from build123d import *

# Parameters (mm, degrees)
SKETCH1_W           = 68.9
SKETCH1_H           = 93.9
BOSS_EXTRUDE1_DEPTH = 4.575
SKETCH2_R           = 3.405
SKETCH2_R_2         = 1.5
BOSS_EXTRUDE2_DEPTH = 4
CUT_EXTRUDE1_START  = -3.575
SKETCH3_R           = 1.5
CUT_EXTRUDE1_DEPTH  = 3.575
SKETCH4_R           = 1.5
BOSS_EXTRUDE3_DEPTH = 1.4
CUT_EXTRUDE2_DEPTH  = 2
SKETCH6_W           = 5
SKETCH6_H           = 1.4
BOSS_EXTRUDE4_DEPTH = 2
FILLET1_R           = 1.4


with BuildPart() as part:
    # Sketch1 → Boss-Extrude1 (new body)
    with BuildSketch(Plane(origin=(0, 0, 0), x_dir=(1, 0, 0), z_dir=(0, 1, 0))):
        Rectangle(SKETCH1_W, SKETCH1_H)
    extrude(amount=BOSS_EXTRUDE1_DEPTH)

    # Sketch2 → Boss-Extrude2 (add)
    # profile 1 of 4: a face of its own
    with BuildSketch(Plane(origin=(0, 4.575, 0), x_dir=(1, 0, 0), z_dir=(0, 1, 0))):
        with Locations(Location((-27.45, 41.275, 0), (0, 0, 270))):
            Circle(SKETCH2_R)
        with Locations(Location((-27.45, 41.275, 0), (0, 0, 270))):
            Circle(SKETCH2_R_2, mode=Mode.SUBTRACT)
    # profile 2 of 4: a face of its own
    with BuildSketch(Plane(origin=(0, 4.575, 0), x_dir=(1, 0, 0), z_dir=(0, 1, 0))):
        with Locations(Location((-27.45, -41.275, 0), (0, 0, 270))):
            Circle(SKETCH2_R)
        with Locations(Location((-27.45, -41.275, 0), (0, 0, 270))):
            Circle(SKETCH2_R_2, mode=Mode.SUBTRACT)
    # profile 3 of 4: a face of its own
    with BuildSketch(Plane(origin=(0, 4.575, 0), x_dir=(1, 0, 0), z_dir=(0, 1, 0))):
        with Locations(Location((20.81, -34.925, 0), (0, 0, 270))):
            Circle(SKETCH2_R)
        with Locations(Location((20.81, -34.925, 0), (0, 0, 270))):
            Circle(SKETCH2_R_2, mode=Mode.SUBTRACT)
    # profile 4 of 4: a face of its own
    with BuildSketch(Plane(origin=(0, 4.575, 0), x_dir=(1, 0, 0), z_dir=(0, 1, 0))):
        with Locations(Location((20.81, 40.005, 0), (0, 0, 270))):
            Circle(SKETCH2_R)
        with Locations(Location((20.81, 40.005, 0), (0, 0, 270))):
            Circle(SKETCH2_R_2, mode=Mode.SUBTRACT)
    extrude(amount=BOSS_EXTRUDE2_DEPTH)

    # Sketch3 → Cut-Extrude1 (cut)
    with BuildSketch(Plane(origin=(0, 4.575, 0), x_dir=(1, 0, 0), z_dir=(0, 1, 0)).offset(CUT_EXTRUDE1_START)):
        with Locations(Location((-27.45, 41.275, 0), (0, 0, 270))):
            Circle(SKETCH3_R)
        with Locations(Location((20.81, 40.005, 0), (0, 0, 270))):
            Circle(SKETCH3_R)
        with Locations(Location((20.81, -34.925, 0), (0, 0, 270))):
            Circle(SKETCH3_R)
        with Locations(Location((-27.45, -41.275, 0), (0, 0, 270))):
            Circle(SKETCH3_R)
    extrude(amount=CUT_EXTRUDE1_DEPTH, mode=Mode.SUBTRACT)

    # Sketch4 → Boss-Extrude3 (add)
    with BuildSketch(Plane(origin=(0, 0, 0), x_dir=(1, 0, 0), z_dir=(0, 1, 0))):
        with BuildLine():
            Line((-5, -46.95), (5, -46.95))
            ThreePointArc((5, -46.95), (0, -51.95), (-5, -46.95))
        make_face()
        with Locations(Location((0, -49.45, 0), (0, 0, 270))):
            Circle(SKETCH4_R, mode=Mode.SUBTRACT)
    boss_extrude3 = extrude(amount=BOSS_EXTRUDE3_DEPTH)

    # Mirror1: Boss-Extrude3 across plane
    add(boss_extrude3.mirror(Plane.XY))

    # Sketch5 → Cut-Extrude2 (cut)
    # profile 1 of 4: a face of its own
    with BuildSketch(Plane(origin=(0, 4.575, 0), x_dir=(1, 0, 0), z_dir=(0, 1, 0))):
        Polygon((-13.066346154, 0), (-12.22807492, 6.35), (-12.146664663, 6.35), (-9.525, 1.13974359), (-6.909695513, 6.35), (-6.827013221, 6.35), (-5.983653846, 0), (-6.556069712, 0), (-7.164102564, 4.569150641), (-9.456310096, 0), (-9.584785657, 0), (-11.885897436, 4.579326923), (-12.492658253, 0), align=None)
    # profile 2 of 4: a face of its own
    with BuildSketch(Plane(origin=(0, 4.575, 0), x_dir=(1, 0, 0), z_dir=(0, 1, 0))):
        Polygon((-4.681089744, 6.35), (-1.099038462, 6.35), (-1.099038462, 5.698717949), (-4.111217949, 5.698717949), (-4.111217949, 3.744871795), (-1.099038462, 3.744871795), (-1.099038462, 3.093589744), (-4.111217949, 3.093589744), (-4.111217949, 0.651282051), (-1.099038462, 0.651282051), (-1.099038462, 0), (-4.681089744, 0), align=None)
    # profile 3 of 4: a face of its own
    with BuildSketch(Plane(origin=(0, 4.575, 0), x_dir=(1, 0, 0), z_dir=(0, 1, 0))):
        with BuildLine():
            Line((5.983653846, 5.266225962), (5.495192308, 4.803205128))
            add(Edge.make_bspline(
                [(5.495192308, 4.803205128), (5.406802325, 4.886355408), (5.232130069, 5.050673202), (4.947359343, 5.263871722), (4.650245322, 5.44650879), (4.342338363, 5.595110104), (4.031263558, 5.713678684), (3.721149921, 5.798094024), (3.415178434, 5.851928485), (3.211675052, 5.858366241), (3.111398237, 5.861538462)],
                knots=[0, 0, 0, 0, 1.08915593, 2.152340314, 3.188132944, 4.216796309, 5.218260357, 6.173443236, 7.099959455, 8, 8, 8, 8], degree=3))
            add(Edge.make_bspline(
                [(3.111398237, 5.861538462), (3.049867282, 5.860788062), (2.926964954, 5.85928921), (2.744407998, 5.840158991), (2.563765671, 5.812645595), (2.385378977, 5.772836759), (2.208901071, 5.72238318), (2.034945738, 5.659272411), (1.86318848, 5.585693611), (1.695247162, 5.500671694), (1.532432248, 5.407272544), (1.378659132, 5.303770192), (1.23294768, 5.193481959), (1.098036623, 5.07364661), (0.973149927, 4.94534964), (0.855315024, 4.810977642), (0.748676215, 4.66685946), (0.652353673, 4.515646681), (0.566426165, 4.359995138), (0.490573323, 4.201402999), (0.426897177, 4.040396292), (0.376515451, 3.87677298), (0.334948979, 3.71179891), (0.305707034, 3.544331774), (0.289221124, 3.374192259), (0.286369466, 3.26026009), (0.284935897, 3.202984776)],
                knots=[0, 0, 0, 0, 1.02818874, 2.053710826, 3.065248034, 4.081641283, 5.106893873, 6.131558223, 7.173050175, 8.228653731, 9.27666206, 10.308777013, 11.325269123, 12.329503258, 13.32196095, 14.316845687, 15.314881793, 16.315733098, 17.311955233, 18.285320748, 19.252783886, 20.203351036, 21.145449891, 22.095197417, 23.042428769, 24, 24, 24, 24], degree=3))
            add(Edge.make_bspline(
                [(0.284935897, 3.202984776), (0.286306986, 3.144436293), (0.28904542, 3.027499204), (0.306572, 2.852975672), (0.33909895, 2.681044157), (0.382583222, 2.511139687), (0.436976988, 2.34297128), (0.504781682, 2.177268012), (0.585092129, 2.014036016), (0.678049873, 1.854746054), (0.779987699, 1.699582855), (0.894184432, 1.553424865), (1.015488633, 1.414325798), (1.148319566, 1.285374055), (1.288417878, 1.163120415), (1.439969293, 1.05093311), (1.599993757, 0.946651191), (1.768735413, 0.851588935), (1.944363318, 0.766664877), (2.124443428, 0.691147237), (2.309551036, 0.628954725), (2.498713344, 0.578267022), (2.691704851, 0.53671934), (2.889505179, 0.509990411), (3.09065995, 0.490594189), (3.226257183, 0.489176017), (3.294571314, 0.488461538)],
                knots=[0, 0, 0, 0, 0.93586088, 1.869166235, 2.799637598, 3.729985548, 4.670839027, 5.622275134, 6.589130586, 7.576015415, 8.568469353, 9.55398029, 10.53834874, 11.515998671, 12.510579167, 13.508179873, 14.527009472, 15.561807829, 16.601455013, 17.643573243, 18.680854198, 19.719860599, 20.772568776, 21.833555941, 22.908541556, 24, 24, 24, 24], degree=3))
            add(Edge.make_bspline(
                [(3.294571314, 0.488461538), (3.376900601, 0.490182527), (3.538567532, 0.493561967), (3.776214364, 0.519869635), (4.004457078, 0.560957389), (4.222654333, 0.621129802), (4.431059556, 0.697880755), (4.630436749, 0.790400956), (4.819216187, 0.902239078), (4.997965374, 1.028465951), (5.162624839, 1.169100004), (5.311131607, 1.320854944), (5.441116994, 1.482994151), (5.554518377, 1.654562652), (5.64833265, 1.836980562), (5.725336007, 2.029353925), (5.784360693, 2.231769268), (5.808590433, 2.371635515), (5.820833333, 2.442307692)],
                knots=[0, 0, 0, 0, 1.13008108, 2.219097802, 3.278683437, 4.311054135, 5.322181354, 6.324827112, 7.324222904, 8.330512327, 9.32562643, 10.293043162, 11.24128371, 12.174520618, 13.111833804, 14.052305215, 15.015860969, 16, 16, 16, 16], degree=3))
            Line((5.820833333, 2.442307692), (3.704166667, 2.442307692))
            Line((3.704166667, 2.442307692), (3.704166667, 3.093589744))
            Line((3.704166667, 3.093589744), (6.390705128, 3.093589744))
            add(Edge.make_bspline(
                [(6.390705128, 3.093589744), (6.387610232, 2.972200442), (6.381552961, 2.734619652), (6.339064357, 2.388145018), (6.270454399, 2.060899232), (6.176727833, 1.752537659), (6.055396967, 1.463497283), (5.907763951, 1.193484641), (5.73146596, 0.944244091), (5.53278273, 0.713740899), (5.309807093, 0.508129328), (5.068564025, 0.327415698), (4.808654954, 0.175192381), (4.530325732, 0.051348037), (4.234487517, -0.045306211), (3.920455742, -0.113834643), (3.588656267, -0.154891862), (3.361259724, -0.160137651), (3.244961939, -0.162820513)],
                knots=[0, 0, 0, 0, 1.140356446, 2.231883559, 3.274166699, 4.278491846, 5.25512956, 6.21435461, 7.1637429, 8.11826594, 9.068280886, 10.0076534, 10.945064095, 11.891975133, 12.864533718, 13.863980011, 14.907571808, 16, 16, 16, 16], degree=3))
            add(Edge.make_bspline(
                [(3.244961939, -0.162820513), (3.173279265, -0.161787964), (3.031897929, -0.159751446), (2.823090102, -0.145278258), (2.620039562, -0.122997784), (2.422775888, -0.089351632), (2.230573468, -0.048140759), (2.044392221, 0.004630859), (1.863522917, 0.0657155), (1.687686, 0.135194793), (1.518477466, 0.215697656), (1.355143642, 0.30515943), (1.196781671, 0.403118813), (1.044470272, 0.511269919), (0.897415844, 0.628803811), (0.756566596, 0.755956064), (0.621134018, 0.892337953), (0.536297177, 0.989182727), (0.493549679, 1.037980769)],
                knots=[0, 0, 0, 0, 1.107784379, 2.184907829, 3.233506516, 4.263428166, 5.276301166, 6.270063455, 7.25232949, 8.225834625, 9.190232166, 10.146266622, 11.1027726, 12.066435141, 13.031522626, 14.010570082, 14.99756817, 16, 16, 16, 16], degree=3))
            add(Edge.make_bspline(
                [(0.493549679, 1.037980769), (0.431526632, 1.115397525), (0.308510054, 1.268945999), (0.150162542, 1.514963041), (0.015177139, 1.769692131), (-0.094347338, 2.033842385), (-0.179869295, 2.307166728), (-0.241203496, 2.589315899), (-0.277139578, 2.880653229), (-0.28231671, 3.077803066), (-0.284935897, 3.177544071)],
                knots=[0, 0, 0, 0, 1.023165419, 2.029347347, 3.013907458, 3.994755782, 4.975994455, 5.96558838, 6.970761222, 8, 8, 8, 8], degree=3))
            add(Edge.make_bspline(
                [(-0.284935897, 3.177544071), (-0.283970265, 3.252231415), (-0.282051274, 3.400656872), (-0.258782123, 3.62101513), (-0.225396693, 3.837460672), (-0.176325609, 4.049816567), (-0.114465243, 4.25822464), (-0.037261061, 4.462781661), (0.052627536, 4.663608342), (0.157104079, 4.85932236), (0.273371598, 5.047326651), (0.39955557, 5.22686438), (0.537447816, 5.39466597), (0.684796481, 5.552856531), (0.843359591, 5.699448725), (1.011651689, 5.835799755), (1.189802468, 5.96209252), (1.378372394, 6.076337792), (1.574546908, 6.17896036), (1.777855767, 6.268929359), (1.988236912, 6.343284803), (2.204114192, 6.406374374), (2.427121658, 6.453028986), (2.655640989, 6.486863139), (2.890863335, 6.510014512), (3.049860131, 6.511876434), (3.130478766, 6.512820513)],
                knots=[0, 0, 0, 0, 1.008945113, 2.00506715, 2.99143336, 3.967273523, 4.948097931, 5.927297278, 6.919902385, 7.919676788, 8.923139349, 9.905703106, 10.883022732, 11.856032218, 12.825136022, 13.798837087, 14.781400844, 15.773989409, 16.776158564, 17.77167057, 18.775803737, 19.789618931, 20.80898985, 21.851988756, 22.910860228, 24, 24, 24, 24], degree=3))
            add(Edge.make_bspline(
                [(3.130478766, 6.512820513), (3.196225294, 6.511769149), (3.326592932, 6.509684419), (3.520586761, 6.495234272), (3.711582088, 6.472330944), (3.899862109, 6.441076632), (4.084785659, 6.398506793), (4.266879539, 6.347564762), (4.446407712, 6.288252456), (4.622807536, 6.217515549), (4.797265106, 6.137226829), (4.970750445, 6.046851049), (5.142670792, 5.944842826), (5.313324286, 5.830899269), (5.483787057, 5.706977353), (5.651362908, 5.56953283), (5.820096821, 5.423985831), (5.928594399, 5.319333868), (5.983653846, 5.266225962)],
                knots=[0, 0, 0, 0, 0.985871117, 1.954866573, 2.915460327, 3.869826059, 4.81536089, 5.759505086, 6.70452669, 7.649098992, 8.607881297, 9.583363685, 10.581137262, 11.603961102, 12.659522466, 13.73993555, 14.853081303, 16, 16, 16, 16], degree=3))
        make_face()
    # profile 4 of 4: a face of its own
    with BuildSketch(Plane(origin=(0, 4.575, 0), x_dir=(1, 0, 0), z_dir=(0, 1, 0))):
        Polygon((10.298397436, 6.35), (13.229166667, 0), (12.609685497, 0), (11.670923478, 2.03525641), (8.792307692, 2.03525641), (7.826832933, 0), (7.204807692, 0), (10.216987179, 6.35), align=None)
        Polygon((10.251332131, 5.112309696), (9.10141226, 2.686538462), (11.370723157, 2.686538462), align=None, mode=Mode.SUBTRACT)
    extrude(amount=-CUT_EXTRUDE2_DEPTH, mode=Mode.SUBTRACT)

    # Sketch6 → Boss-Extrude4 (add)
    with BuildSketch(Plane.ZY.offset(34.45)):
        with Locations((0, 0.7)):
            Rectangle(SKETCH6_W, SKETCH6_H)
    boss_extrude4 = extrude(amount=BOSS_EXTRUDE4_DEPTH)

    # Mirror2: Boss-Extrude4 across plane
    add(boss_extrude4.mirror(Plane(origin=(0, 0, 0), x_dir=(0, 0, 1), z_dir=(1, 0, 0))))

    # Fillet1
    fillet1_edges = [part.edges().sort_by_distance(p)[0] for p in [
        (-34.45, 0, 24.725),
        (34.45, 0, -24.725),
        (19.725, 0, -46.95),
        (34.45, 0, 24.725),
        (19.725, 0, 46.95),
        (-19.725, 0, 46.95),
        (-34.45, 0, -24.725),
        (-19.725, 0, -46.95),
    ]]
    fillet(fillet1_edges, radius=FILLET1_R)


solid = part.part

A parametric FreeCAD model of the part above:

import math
import FreeCAD as App
import Part
import Sketcher
from FreeCAD import Vector
Q = App.Units.Quantity


def edges_at(feature, points):
    """Names of the edges that pass closest to the given points."""
    edges = feature.Shape.Edges
    near = lambda p: min(range(len(edges)), key=lambda i: edges[i].distToShape(Part.Vertex(*p))[0])
    return sorted({f"Edge{near(p) + 1}" for p in points})

doc = App.newDocument("Part")
body = doc.addObject("PartDesign::Body", "Body")

# Sketch on XZ plane
sketch1 = body.newObject("Sketcher::SketchObject", "Sketch")
sketch1.AttachmentSupport = (doc.getObject("XZ_Plane"), [""])
sketch1.MapMode = "FlatFace"
sketch1.addGeometry(Part.LineSegment(Vector(-34, -47, 0), Vector(-34, 47, 0)), False)
sketch1.addGeometry(Part.LineSegment(Vector(-34, 47, 0), Vector(34, 47, 0)), False)
sketch1.addGeometry(Part.LineSegment(Vector(34, 47, 0), Vector(34, -47, 0)), False)
sketch1.addGeometry(Part.LineSegment(Vector(34, -47, 0), Vector(-34, -47, 0)), False)
sketch1.addConstraint(Sketcher.Constraint("Coincident", 0, 2, 1, 1))
sketch1.addConstraint(Sketcher.Constraint("Coincident", 1, 2, 2, 1))
sketch1.addConstraint(Sketcher.Constraint("Coincident", 2, 2, 3, 1))
sketch1.addConstraint(Sketcher.Constraint("Coincident", 3, 2, 0, 1))
sketch1.addConstraint(Sketcher.Constraint("Vertical", 0))
sketch1.addConstraint(Sketcher.Constraint("Horizontal", 1))
sketch1.addConstraint(Sketcher.Constraint("Vertical", 2))
sketch1.addConstraint(Sketcher.Constraint("Horizontal", 3))
sketch1.addConstraint(Sketcher.Constraint("Symmetric", 0, 2, 2, 2, -1, 1))
sketch1.addConstraint(Sketcher.Constraint("DistanceX", 1, 1, 1, 2, Q("68.9 mm")))
sketch1.addConstraint(Sketcher.Constraint("DistanceY", 0, 1, 0, 2, Q("93.9 mm")))
pad1 = body.newObject("PartDesign::Pad", "Pad")
pad1.Profile = sketch1
pad1.Length = 4.575
pad1.Reversed = True

# Sketch on XZ plane
sketch2 = body.newObject("Sketcher::SketchObject", "Sketch001")
sketch2.AttachmentSupport = (doc.getObject("XZ_Plane"), [""])
sketch2.MapMode = "FlatFace"
sketch2.AttachmentOffset = App.Placement(Vector(0, 0, -4.575), App.Rotation())
sketch2.addGeometry(Part.Circle(Vector(-27.4, -41.3, 0), Vector(0, 0, 1), 3.4), False)
sketch2.addGeometry(Part.Circle(Vector(-27.4, -41.3, 0), Vector(0, 0, 1), 1.5), False)
sketch2.addGeometry(Part.Circle(Vector(-27.4, 41.3, 0), Vector(0, 0, 1), 3.4), False)
sketch2.addGeometry(Part.Circle(Vector(-27.4, 41.3, 0), Vector(0, 0, 1), 1.5), False)
sketch2.addGeometry(Part.Circle(Vector(20.8, 34.9, 0), Vector(0, 0, 1), 3.4), False)
sketch2.addGeometry(Part.Circle(Vector(20.8, 34.9, 0), Vector(0, 0, 1), 1.5), False)
sketch2.addGeometry(Part.Circle(Vector(20.8, -40, 0), Vector(0, 0, 1), 3.4), False)
sketch2.addGeometry(Part.Circle(Vector(20.8, -40, 0), Vector(0, 0, 1), 1.5), False)
sketch2.addConstraint(Sketcher.Constraint("Coincident", 1, 3, 0, 3))
sketch2.addConstraint(Sketcher.Constraint("Coincident", 3, 3, 2, 3))
sketch2.addConstraint(Sketcher.Constraint("Coincident", 5, 3, 4, 3))
sketch2.addConstraint(Sketcher.Constraint("Coincident", 7, 3, 6, 3))
sketch2.addConstraint(Sketcher.Constraint("Equal", 0, 2))
sketch2.addConstraint(Sketcher.Constraint("Equal", 1, 3))
sketch2.addConstraint(Sketcher.Constraint("Equal", 2, 4))
sketch2.addConstraint(Sketcher.Constraint("Equal", 3, 5))
sketch2.addConstraint(Sketcher.Constraint("Equal", 4, 6))
sketch2.addConstraint(Sketcher.Constraint("Equal", 5, 7))
sketch2.addConstraint(Sketcher.Constraint("Symmetric", 0, 3, 2, 3, -1))
sketch2.addConstraint(Sketcher.Constraint("Vertical", 5, 3, 6, 3))
sketch2.addConstraint(Sketcher.Constraint("Diameter", 1, Q("3 mm")))
sketch2.addConstraint(Sketcher.Constraint("Diameter", 0, Q("6.81 mm")))
sketch2.addConstraint(Sketcher.Constraint("DistanceY", 0, 3, 4, 3, Q("76.2 mm")))
sketch2.addConstraint(Sketcher.Constraint("DistanceX", 0, 3, -1, 1, Q("27.45 mm")))
sketch2.addConstraint(Sketcher.Constraint("DistanceX", -1, 1, 4, 3, Q("20.81 mm")))
sketch2.addConstraint(Sketcher.Constraint("DistanceY", 0, 3, 2, 3, Q("82.55 mm")))
sketch2.addConstraint(Sketcher.Constraint("DistanceY", 0, 3, 6, 3, Q("1.27 mm")))
pad2 = body.newObject("PartDesign::Pad", "Pad001")
pad2.Profile = sketch2
pad2.Length = 4
pad2.Reversed = True

# Sketch on XZ plane
sketch3 = body.newObject("Sketcher::SketchObject", "Sketch002")
sketch3.AttachmentSupport = (doc.getObject("XZ_Plane"), [""])
sketch3.MapMode = "FlatFace"
sketch3.AttachmentOffset = App.Placement(Vector(0, 0, -1), App.Rotation())
sketch3.addGeometry(Part.Circle(Vector(-27.4, -41.3, 0), Vector(0, 0, 1), 1.5), False)
sketch3.addGeometry(Part.Circle(Vector(20.8, -40, 0), Vector(0, 0, 1), 1.5), False)
sketch3.addGeometry(Part.Circle(Vector(20.8, 34.9, 0), Vector(0, 0, 1), 1.5), False)
sketch3.addGeometry(Part.Circle(Vector(-27.4, 41.3, 0), Vector(0, 0, 1), 1.5), False)
sketch3.addConstraint(Sketcher.Constraint("Equal", 0, 1))
sketch3.addConstraint(Sketcher.Constraint("Equal", 1, 2))
sketch3.addConstraint(Sketcher.Constraint("Equal", 2, 3))
sketch3.addConstraint(Sketcher.Constraint("Symmetric", 0, 3, 3, 3, -1))
sketch3.addConstraint(Sketcher.Constraint("Vertical", 1, 3, 2, 3))
sketch3.addConstraint(Sketcher.Constraint("Diameter", 0, Q("3 mm")))
sketch3.addConstraint(Sketcher.Constraint("DistanceY", 0, 3, 2, 3, Q("76.2 mm")))
sketch3.addConstraint(Sketcher.Constraint("DistanceX", 0, 3, -1, 1, Q("27.45 mm")))
sketch3.addConstraint(Sketcher.Constraint("DistanceX", -1, 1, 1, 3, Q("20.81 mm")))
sketch3.addConstraint(Sketcher.Constraint("DistanceY", 0, 3, 1, 3, Q("1.27 mm")))
sketch3.addConstraint(Sketcher.Constraint("DistanceY", 2, 3, 3, 3, Q("6.35 mm")))
pocket1 = body.newObject("PartDesign::Pocket", "Pocket")
pocket1.Profile = sketch3
pocket1.Length = 3.575

# Sketch on XZ plane
sketch4 = body.newObject("Sketcher::SketchObject", "Sketch003")
sketch4.AttachmentSupport = (doc.getObject("XZ_Plane"), [""])
sketch4.MapMode = "FlatFace"
sketch4.addGeometry(Part.LineSegment(Vector(5, 47, 0), Vector(-5, 47, 0)), False)
sketch4.addGeometry(Part.ArcOfCircle(Part.Circle(Vector(0, 47, 0), Vector(0, 0, 1), 5), math.radians(0), math.radians(180)), False)
sketch4.addGeometry(Part.Circle(Vector(0, 49.5, 0), Vector(0, 0, 1), 1.5), False)
sketch4.addConstraint(Sketcher.Constraint("Coincident", 0, 1, 1, 1))
sketch4.addConstraint(Sketcher.Constraint("Coincident", 1, 2, 0, 2))
sketch4.addConstraint(Sketcher.Constraint("Horizontal", 0))
sketch4.addConstraint(Sketcher.Constraint("PointOnObject", 1, 3, -2))
sketch4.addConstraint(Sketcher.Constraint("PointOnObject", 2, 3, -2))
sketch4.addConstraint(Sketcher.Constraint("Horizontal", 1, 3, 0, 1))
sketch4.addConstraint(Sketcher.Constraint("Diameter", 2, Q("3 mm")))
sketch4.addConstraint(Sketcher.Constraint("Radius", 1, Q("5 mm")))
sketch4.addConstraint(Sketcher.Constraint("DistanceY", 1, 3, 2, 3, Q("2.5 mm")))
sketch4.addConstraint(Sketcher.Constraint("DistanceY", -1, 1, 1, 3, Q("46.95 mm")))
pad3 = body.newObject("PartDesign::Pad", "Pad002")
pad3.Profile = sketch4
pad3.Length = 1.4
pad3.Reversed = True
doc.recompute()

mirrored = body.newObject("PartDesign::Mirrored", "Mirrored")
mirrored.Originals = [pad3]
mirrored.MirrorPlane = (doc.getObject("XY_Plane"), [""])
body.Tip = mirrored

# Sketch on XZ plane
sketch5 = body.newObject("Sketcher::SketchObject", "Sketch004")
sketch5.AttachmentSupport = (doc.getObject("XZ_Plane"), [""])
sketch5.MapMode = "FlatFace"
sketch5.AttachmentOffset = App.Placement(Vector(0, 0, -4.575), App.Rotation())
sketch5.addGeometry(Part.LineSegment(Vector(-12.228075, -6.35, 0), Vector(-13.066346, 0, 0)), False)
sketch5.addGeometry(Part.LineSegment(Vector(-13.066346, 0, 0), Vector(-12.492658, 0, 0)), False)
sketch5.addGeometry(Part.LineSegment(Vector(-12.492658, 0, 0), Vector(-11.885897, -4.579327, 0)), False)
sketch5.addGeometry(Part.LineSegment(Vector(-11.885897, -4.579327, 0), Vector(-9.584786, 0, 0)), False)
sketch5.addGeometry(Part.LineSegment(Vector(-9.584786, 0, 0), Vector(-9.45631, 0, 0)), False)
sketch5.addGeometry(Part.LineSegment(Vector(-9.45631, 0, 0), Vector(-7.164103, -4.569151, 0)), False)
sketch5.addGeometry(Part.LineSegment(Vector(-7.164103, -4.569151, 0), Vector(-6.55607, 0, 0)), False)
sketch5.addGeometry(Part.LineSegment(Vector(-6.55607, 0, 0), Vector(-5.983654, 0, 0)), False)
sketch5.addGeometry(Part.LineSegment(Vector(-5.983654, 0, 0), Vector(-6.827013, -6.35, 0)), False)
sketch5.addGeometry(Part.LineSegment(Vector(-6.827013, -6.35, 0), Vector(-6.909696, -6.35, 0)), False)
sketch5.addGeometry(Part.LineSegment(Vector(-6.909696, -6.35, 0), Vector(-9.525, -1.139744, 0)), False)
sketch5.addGeometry(Part.LineSegment(Vector(-9.525, -1.139744, 0), Vector(-12.146665, -6.35, 0)), False)
sketch5.addGeometry(Part.LineSegment(Vector(-12.146665, -6.35, 0), Vector(-12.228075, -6.35, 0)), False)
sketch5.addGeometry(Part.LineSegment(Vector(-1.099038, -6.35, 0), Vector(-4.68109, -6.35, 0)), False)
sketch5.addGeometry(Part.LineSegment(Vector(-4.68109, -6.35, 0), Vector(-4.68109, 0, 0)), False)
sketch5.addGeometry(Part.LineSegment(Vector(-4.68109, 0, 0), Vector(-1.099038, 0, 0)), False)
sketch5.addGeometry(Part.LineSegment(Vector(-1.099038, 0, 0), Vector(-1.099038, -0.651282, 0)), False)
sketch5.addGeometry(Part.LineSegment(Vector(-1.099038, -0.651282, 0), Vector(-4.111218, -0.651282, 0)), False)
sketch5.addGeometry(Part.LineSegment(Vector(-4.111218, -0.651282, 0), Vector(-4.111218, -3.09359, 0)), False)
sketch5.addGeometry(Part.LineSegment(Vector(-4.111218, -3.09359, 0), Vector(-1.099038, -3.09359, 0)), False)
sketch5.addGeometry(Part.LineSegment(Vector(-1.099038, -3.09359, 0), Vector(-1.099038, -3.744872, 0)), False)
sketch5.addGeometry(Part.LineSegment(Vector(-1.099038, -3.744872, 0), Vector(-4.111218, -3.744872, 0)), False)
sketch5.addGeometry(Part.LineSegment(Vector(-4.111218, -3.744872, 0), Vector(-4.111218, -5.698718, 0)), False)
sketch5.addGeometry(Part.LineSegment(Vector(-4.111218, -5.698718, 0), Vector(-1.099038, -5.698718, 0)), False)
sketch5.addGeometry(Part.LineSegment(Vector(-1.099038, -5.698718, 0), Vector(-1.099038, -6.35, 0)), False)
sketch5.addGeometry(Part.LineSegment(Vector(5.495192, -4.803205, 0), Vector(5.983654, -5.266226, 0)), False)
sketch5.addGeometry(Part.BSplineCurve([Vector(3.130479, -6.512821, 0), Vector(3.196225, -6.511769, 0), Vector(3.326593, -6.509684, 0), Vector(3.520587, -6.495234, 0), Vector(3.711582, -6.472331, 0), Vector(3.899862, -6.441077, 0), Vector(4.084786, -6.398507, 0), Vector(4.26688, -6.347565, 0), Vector(4.446408, -6.288252, 0), Vector(4.622808, -6.217516, 0), Vector(4.797265, -6.137227, 0), Vector(4.97075, -6.046851, 0), Vector(5.142671, -5.944843, 0), Vector(5.313324, -5.830899, 0), Vector(5.483787, -5.706977, 0), Vector(5.651363, -5.569533, 0), Vector(5.820097, -5.423986, 0), Vector(5.928594, -5.319334, 0), Vector(5.983654, -5.266226, 0)], [4, 1, 1, 1, 1, 1, 1, 1, 1, 1, 1, 1, 1, 1, 1, 1, 4], [0, 0.985871117, 1.954866573, 2.915460327, 3.869826059, 4.81536089, 5.759505086, 6.70452669, 7.649098992, 8.607881297, 9.583363685, 10.581137262, 11.603961102, 12.659522466, 13.73993555, 14.853081303, 16], False, 3, [1, 1, 1, 1, 1, 1, 1, 1, 1, 1, 1, 1, 1, 1, 1, 1, 1, 1, 1], False), False)
sketch5.addGeometry(Part.BSplineCurve([Vector(-0.284936, -3.177544, 0), Vector(-0.28397, -3.252231, 0), Vector(-0.282051, -3.400657, 0), Vector(-0.258782, -3.621015, 0), Vector(-0.225397, -3.837461, 0), Vector(-0.176326, -4.049817, 0), Vector(-0.114465, -4.258225, 0), Vector(-0.037261, -4.462782, 0), Vector(0.052628, -4.663608, 0), Vector(0.157104, -4.859322, 0), Vector(0.273372, -5.047327, 0), Vector(0.399556, -5.226864, 0), Vector(0.537448, -5.394666, 0), Vector(0.684796, -5.552857, 0), Vector(0.84336, -5.699449, 0), Vector(1.011652, -5.8358, 0), Vector(1.189802, -5.962093, 0), Vector(1.378372, -6.076338, 0), Vector(1.574547, -6.17896, 0), Vector(1.777856, -6.268929, 0), Vector(1.988237, -6.343285, 0), Vector(2.204114, -6.406374, 0), Vector(2.427122, -6.453029, 0), Vector(2.655641, -6.486863, 0), Vector(2.890863, -6.510015, 0), Vector(3.04986, -6.511876, 0), Vector(3.130479, -6.512821, 0)], [4, 1, 1, 1, 1, 1, 1, 1, 1, 1, 1, 1, 1, 1, 1, 1, 1, 1, 1, 1, 1, 1, 1, 1, 4], [0, 1.008945113, 2.00506715, 2.99143336, 3.967273523, 4.948097931, 5.927297278, 6.919902385, 7.919676788, 8.923139349, 9.905703106, 10.883022732, 11.856032218, 12.825136022, 13.798837087, 14.781400844, 15.773989409, 16.776158564, 17.77167057, 18.775803737, 19.789618931, 20.80898985, 21.851988756, 22.910860228, 24], False, 3, [1, 1, 1, 1, 1, 1, 1, 1, 1, 1, 1, 1, 1, 1, 1, 1, 1, 1, 1, 1, 1, 1, 1, 1, 1, 1, 1], False), False)
sketch5.addGeometry(Part.BSplineCurve([Vector(0.49355, -1.037981, 0), Vector(0.431527, -1.115398, 0), Vector(0.30851, -1.268946, 0), Vector(0.150163, -1.514963, 0), Vector(0.015177, -1.769692, 0), Vector(-0.094347, -2.033842, 0), Vector(-0.179869, -2.307167, 0), Vector(-0.241203, -2.589316, 0), Vector(-0.27714, -2.880653, 0), Vector(-0.282317, -3.077803, 0), Vector(-0.284936, -3.177544, 0)], [4, 1, 1, 1, 1, 1, 1, 1, 4], [0, 1.023165419, 2.029347347, 3.013907458, 3.994755782, 4.975994455, 5.96558838, 6.970761222, 8], False, 3, [1, 1, 1, 1, 1, 1, 1, 1, 1, 1, 1], False), False)
sketch5.addGeometry(Part.BSplineCurve([Vector(3.244962, 0.162821, 0), Vector(3.173279, 0.161788, 0), Vector(3.031898, 0.159751, 0), Vector(2.82309, 0.145278, 0), Vector(2.62004, 0.122998, 0), Vector(2.422776, 0.089352, 0), Vector(2.230573, 0.048141, 0), Vector(2.044392, -0.004631, 0), Vector(1.863523, -0.065715, 0), Vector(1.687686, -0.135195, 0), Vector(1.518477, -0.215698, 0), Vector(1.355144, -0.305159, 0), Vector(1.196782, -0.403119, 0), Vector(1.04447, -0.51127, 0), Vector(0.897416, -0.628804, 0), Vector(0.756567, -0.755956, 0), Vector(0.621134, -0.892338, 0), Vector(0.536297, -0.989183, 0), Vector(0.49355, -1.037981, 0)], [4, 1, 1, 1, 1, 1, 1, 1, 1, 1, 1, 1, 1, 1, 1, 1, 4], [0, 1.107784379, 2.184907829, 3.233506516, 4.263428166, 5.276301166, 6.270063455, 7.25232949, 8.225834625, 9.190232166, 10.146266622, 11.1027726, 12.066435141, 13.031522626, 14.010570082, 14.99756817, 16], False, 3, [1, 1, 1, 1, 1, 1, 1, 1, 1, 1, 1, 1, 1, 1, 1, 1, 1, 1, 1], False), False)
sketch5.addGeometry(Part.BSplineCurve([Vector(6.390705, -3.09359, 0), Vector(6.38761, -2.9722, 0), Vector(6.381553, -2.73462, 0), Vector(6.339064, -2.388145, 0), Vector(6.270454, -2.060899, 0), Vector(6.176728, -1.752538, 0), Vector(6.055397, -1.463497, 0), Vector(5.907764, -1.193485, 0), Vector(5.731466, -0.944244, 0), Vector(5.532783, -0.713741, 0), Vector(5.309807, -0.508129, 0), Vector(5.068564, -0.327416, 0), Vector(4.808655, -0.175192, 0), Vector(4.530326, -0.051348, 0), Vector(4.234488, 0.045306, 0), Vector(3.920456, 0.113835, 0), Vector(3.588656, 0.154892, 0), Vector(3.36126, 0.160138, 0), Vector(3.244962, 0.162821, 0)], [4, 1, 1, 1, 1, 1, 1, 1, 1, 1, 1, 1, 1, 1, 1, 1, 4], [0, 1.140356446, 2.231883559, 3.274166699, 4.278491846, 5.25512956, 6.21435461, 7.1637429, 8.11826594, 9.068280886, 10.0076534, 10.945064095, 11.891975133, 12.864533718, 13.863980011, 14.907571808, 16], False, 3, [1, 1, 1, 1, 1, 1, 1, 1, 1, 1, 1, 1, 1, 1, 1, 1, 1, 1, 1], False), False)
sketch5.addGeometry(Part.LineSegment(Vector(6.390705, -3.09359, 0), Vector(3.704167, -3.09359, 0)), False)
sketch5.addGeometry(Part.LineSegment(Vector(3.704167, -3.09359, 0), Vector(3.704167, -2.442308, 0)), False)
sketch5.addGeometry(Part.LineSegment(Vector(3.704167, -2.442308, 0), Vector(5.820833, -2.442308, 0)), False)
sketch5.addGeometry(Part.BSplineCurve([Vector(3.294571, -0.488462, 0), Vector(3.376901, -0.490183, 0), Vector(3.538568, -0.493562, 0), Vector(3.776214, -0.51987, 0), Vector(4.004457, -0.560957, 0), Vector(4.222654, -0.62113, 0), Vector(4.43106, -0.697881, 0), Vector(4.630437, -0.790401, 0), Vector(4.819216, -0.902239, 0), Vector(4.997965, -1.028466, 0), Vector(5.162625, -1.1691, 0), Vector(5.311132, -1.320855, 0), Vector(5.441117, -1.482994, 0), Vector(5.554518, -1.654563, 0), Vector(5.648333, -1.836981, 0), Vector(5.725336, -2.029354, 0), Vector(5.784361, -2.231769, 0), Vector(5.80859, -2.371636, 0), Vector(5.820833, -2.442308, 0)], [4, 1, 1, 1, 1, 1, 1, 1, 1, 1, 1, 1, 1, 1, 1, 1, 4], [0, 1.13008108, 2.219097802, 3.278683437, 4.311054135, 5.322181354, 6.324827112, 7.324222904, 8.330512327, 9.32562643, 10.293043162, 11.24128371, 12.174520618, 13.111833804, 14.052305215, 15.015860969, 16], False, 3, [1, 1, 1, 1, 1, 1, 1, 1, 1, 1, 1, 1, 1, 1, 1, 1, 1, 1, 1], False), False)
sketch5.addGeometry(Part.BSplineCurve([Vector(0.284936, -3.202985, 0), Vector(0.286307, -3.144436, 0), Vector(0.289045, -3.027499, 0), Vector(0.306572, -2.852976, 0), Vector(0.339099, -2.681044, 0), Vector(0.382583, -2.51114, 0), Vector(0.436977, -2.342971, 0), Vector(0.504782, -2.177268, 0), Vector(0.585092, -2.014036, 0), Vector(0.67805, -1.854746, 0), Vector(0.779988, -1.699583, 0), Vector(0.894184, -1.553425, 0), Vector(1.015489, -1.414326, 0), Vector(1.14832, -1.285374, 0), Vector(1.288418, -1.16312, 0), Vector(1.439969, -1.050933, 0), Vector(1.599994, -0.946651, 0), Vector(1.768735, -0.851589, 0), Vector(1.944363, -0.766665, 0), Vector(2.124443, -0.691147, 0), Vector(2.309551, -0.628955, 0), Vector(2.498713, -0.578267, 0), Vector(2.691705, -0.536719, 0), Vector(2.889505, -0.50999, 0), Vector(3.09066, -0.490594, 0), Vector(3.226257, -0.489176, 0), Vector(3.294571, -0.488462, 0)], [4, 1, 1, 1, 1, 1, 1, 1, 1, 1, 1, 1, 1, 1, 1, 1, 1, 1, 1, 1, 1, 1, 1, 1, 4], [0, 0.93586088, 1.869166235, 2.799637598, 3.729985548, 4.670839027, 5.622275134, 6.589130586, 7.576015415, 8.568469353, 9.55398029, 10.53834874, 11.515998671, 12.510579167, 13.508179873, 14.527009472, 15.561807829, 16.601455013, 17.643573243, 18.680854198, 19.719860599, 20.772568776, 21.833555941, 22.908541556, 24], False, 3, [1, 1, 1, 1, 1, 1, 1, 1, 1, 1, 1, 1, 1, 1, 1, 1, 1, 1, 1, 1, 1, 1, 1, 1, 1, 1, 1], False), False)
sketch5.addGeometry(Part.BSplineCurve([Vector(3.111398, -5.861538, 0), Vector(3.049867, -5.860788, 0), Vector(2.926965, -5.859289, 0), Vector(2.744408, -5.840159, 0), Vector(2.563766, -5.812646, 0), Vector(2.385379, -5.772837, 0), Vector(2.208901, -5.722383, 0), Vector(2.034946, -5.659272, 0), Vector(1.863188, -5.585694, 0), Vector(1.695247, -5.500672, 0), Vector(1.532432, -5.407273, 0), Vector(1.378659, -5.30377, 0), Vector(1.232948, -5.193482, 0), Vector(1.098037, -5.073647, 0), Vector(0.97315, -4.94535, 0), Vector(0.855315, -4.810978, 0), Vector(0.748676, -4.666859, 0), Vector(0.652354, -4.515647, 0), Vector(0.566426, -4.359995, 0), Vector(0.490573, -4.201403, 0), Vector(0.426897, -4.040396, 0), Vector(0.376515, -3.876773, 0), Vector(0.334949, -3.711799, 0), Vector(0.305707, -3.544332, 0), Vector(0.289221, -3.374192, 0), Vector(0.286369, -3.26026, 0), Vector(0.284936, -3.202985, 0)], [4, 1, 1, 1, 1, 1, 1, 1, 1, 1, 1, 1, 1, 1, 1, 1, 1, 1, 1, 1, 1, 1, 1, 1, 4], [0, 1.02818874, 2.053710826, 3.065248034, 4.081641283, 5.106893873, 6.131558223, 7.173050175, 8.228653731, 9.27666206, 10.308777013, 11.325269123, 12.329503258, 13.32196095, 14.316845687, 15.314881793, 16.315733098, 17.311955233, 18.285320748, 19.252783886, 20.203351036, 21.145449891, 22.095197417, 23.042428769, 24], False, 3, [1, 1, 1, 1, 1, 1, 1, 1, 1, 1, 1, 1, 1, 1, 1, 1, 1, 1, 1, 1, 1, 1, 1, 1, 1, 1, 1], False), False)
sketch5.addGeometry(Part.BSplineCurve([Vector(5.495192, -4.803205, 0), Vector(5.406802, -4.886355, 0), Vector(5.23213, -5.050673, 0), Vector(4.947359, -5.263872, 0), Vector(4.650245, -5.446509, 0), Vector(4.342338, -5.59511, 0), Vector(4.031264, -5.713679, 0), Vector(3.72115, -5.798094, 0), Vector(3.415178, -5.851928, 0), Vector(3.211675, -5.858366, 0), Vector(3.111398, -5.861538, 0)], [4, 1, 1, 1, 1, 1, 1, 1, 4], [0, 1.08915593, 2.152340314, 3.188132944, 4.216796309, 5.218260357, 6.173443236, 7.099959455, 8], False, 3, [1, 1, 1, 1, 1, 1, 1, 1, 1, 1, 1], False), False)
sketch5.addGeometry(Part.LineSegment(Vector(13.229167, 0, 0), Vector(10.298397, -6.35, 0)), False)
sketch5.addGeometry(Part.LineSegment(Vector(10.298397, -6.35, 0), Vector(10.216987, -6.35, 0)), False)
sketch5.addGeometry(Part.LineSegment(Vector(10.216987, -6.35, 0), Vector(7.204808, 0, 0)), False)
sketch5.addGeometry(Part.LineSegment(Vector(7.204808, 0, 0), Vector(7.826833, 0, 0)), False)
sketch5.addGeometry(Part.LineSegment(Vector(7.826833, 0, 0), Vector(8.792308, -2.035256, 0)), False)
sketch5.addGeometry(Part.LineSegment(Vector(8.792308, -2.035256, 0), Vector(11.670923, -2.035256, 0)), False)
sketch5.addGeometry(Part.LineSegment(Vector(11.670923, -2.035256, 0), Vector(12.609685, 0, 0)), False)
sketch5.addGeometry(Part.LineSegment(Vector(12.609685, 0, 0), Vector(13.229167, 0, 0)), False)
sketch5.addGeometry(Part.LineSegment(Vector(10.251332, -5.11231, 0), Vector(11.370723, -2.686538, 0)), False)
sketch5.addGeometry(Part.LineSegment(Vector(11.370723, -2.686538, 0), Vector(9.101412, -2.686538, 0)), False)
sketch5.addGeometry(Part.LineSegment(Vector(9.101412, -2.686538, 0), Vector(10.251332, -5.11231, 0)), False)
sketch5.addConstraint(Sketcher.Constraint("Block", 26))
sketch5.addConstraint(Sketcher.Constraint("Block", 27))
sketch5.addConstraint(Sketcher.Constraint("Block", 28))
sketch5.addConstraint(Sketcher.Constraint("Block", 29))
sketch5.addConstraint(Sketcher.Constraint("Block", 30))
sketch5.addConstraint(Sketcher.Constraint("Block", 34))
sketch5.addConstraint(Sketcher.Constraint("Block", 35))
sketch5.addConstraint(Sketcher.Constraint("Block", 36))
sketch5.addConstraint(Sketcher.Constraint("Block", 37))
sketch5.addConstraint(Sketcher.Constraint("Coincident", 0, 2, 1, 1))
sketch5.addConstraint(Sketcher.Constraint("Coincident", 1, 2, 2, 1))
sketch5.addConstraint(Sketcher.Constraint("Coincident", 2, 2, 3, 1))
sketch5.addConstraint(Sketcher.Constraint("Coincident", 3, 2, 4, 1))
sketch5.addConstraint(Sketcher.Constraint("Coincident", 4, 2, 5, 1))
sketch5.addConstraint(Sketcher.Constraint("Coincident", 5, 2, 6, 1))
sketch5.addConstraint(Sketcher.Constraint("Coincident", 6, 2, 7, 1))
sketch5.addConstraint(Sketcher.Constraint("Coincident", 7, 2, 8, 1))
sketch5.addConstraint(Sketcher.Constraint("Coincident", 8, 2, 9, 1))
sketch5.addConstraint(Sketcher.Constraint("Coincident", 9, 2, 10, 1))
sketch5.addConstraint(Sketcher.Constraint("Coincident", 10, 2, 11, 1))
sketch5.addConstraint(Sketcher.Constraint("Coincident", 11, 2, 12, 1))
sketch5.addConstraint(Sketcher.Constraint("Coincident", 12, 2, 0, 1))
sketch5.addConstraint(Sketcher.Constraint("Coincident", 13, 2, 14, 1))
sketch5.addConstraint(Sketcher.Constraint("Coincident", 14, 2, 15, 1))
sketch5.addConstraint(Sketcher.Constraint("Coincident", 15, 2, 16, 1))
sketch5.addConstraint(Sketcher.Constraint("Coincident", 16, 2, 17, 1))
sketch5.addConstraint(Sketcher.Constraint("Coincident", 17, 2, 18, 1))
sketch5.addConstraint(Sketcher.Constraint("Coincident", 18, 2, 19, 1))
sketch5.addConstraint(Sketcher.Constraint("Coincident", 19, 2, 20, 1))
sketch5.addConstraint(Sketcher.Constraint("Coincident", 20, 2, 21, 1))
sketch5.addConstraint(Sketcher.Constraint("Coincident", 21, 2, 22, 1))
sketch5.addConstraint(Sketcher.Constraint("Coincident", 22, 2, 23, 1))
sketch5.addConstraint(Sketcher.Constraint("Coincident", 23, 2, 24, 1))
sketch5.addConstraint(Sketcher.Constraint("Coincident", 24, 2, 13, 1))
sketch5.addConstraint(Sketcher.Constraint("Coincident", 25, 2, 26, 2))
sketch5.addConstraint(Sketcher.Constraint("Coincident", 30, 1, 31, 1))
sketch5.addConstraint(Sketcher.Constraint("Coincident", 31, 2, 32, 1))
sketch5.addConstraint(Sketcher.Constraint("Coincident", 32, 2, 33, 1))
sketch5.addConstraint(Sketcher.Constraint("Coincident", 33, 2, 34, 2))
sketch5.addConstraint(Sketcher.Constraint("Coincident", 37, 1, 25, 1))
sketch5.addConstraint(Sketcher.Constraint("Coincident", 38, 2, 39, 1))
sketch5.addConstraint(Sketcher.Constraint("Coincident", 39, 2, 40, 1))
sketch5.addConstraint(Sketcher.Constraint("Coincident", 40, 2, 41, 1))
sketch5.addConstraint(Sketcher.Constraint("Coincident", 41, 2, 42, 1))
sketch5.addConstraint(Sketcher.Constraint("Coincident", 42, 2, 43, 1))
sketch5.addConstraint(Sketcher.Constraint("Coincident", 43, 2, 44, 1))
sketch5.addConstraint(Sketcher.Constraint("Coincident", 44, 2, 45, 1))
sketch5.addConstraint(Sketcher.Constraint("Coincident", 45, 2, 38, 1))
sketch5.addConstraint(Sketcher.Constraint("Coincident", 46, 2, 47, 1))
sketch5.addConstraint(Sketcher.Constraint("Coincident", 47, 2, 48, 1))
sketch5.addConstraint(Sketcher.Constraint("Coincident", 48, 2, 46, 1))
sketch5.addConstraint(Sketcher.Constraint("Horizontal", 1))
sketch5.addConstraint(Sketcher.Constraint("Horizontal", 4))
sketch5.addConstraint(Sketcher.Constraint("Horizontal", 7))
sketch5.addConstraint(Sketcher.Constraint("Horizontal", 9))
sketch5.addConstraint(Sketcher.Constraint("Horizontal", 12))
sketch5.addConstraint(Sketcher.Constraint("Horizontal", 13))
sketch5.addConstraint(Sketcher.Constraint("Vertical", 14))
sketch5.addConstraint(Sketcher.Constraint("Horizontal", 15))
sketch5.addConstraint(Sketcher.Constraint("Vertical", 16))
sketch5.addConstraint(Sketcher.Constraint("Horizontal", 17))
sketch5.addConstraint(Sketcher.Constraint("Vertical", 18))
sketch5.addConstraint(Sketcher.Constraint("Horizontal", 19))
sketch5.addConstraint(Sketcher.Constraint("Vertical", 20))
sketch5.addConstraint(Sketcher.Constraint("Horizontal", 21))
sketch5.addConstraint(Sketcher.Constraint("Vertical", 22))
sketch5.addConstraint(Sketcher.Constraint("Horizontal", 23))
sketch5.addConstraint(Sketcher.Constraint("Vertical", 24))
sketch5.addConstraint(Sketcher.Constraint("Horizontal", 31))
sketch5.addConstraint(Sketcher.Constraint("Vertical", 32))
sketch5.addConstraint(Sketcher.Constraint("Horizontal", 33))
sketch5.addConstraint(Sketcher.Constraint("Horizontal", 39))
sketch5.addConstraint(Sketcher.Constraint("Horizontal", 41))
sketch5.addConstraint(Sketcher.Constraint("Horizontal", 43))
sketch5.addConstraint(Sketcher.Constraint("Horizontal", 45))
sketch5.addConstraint(Sketcher.Constraint("Horizontal", 47))
sketch5.addConstraint(Sketcher.Constraint("PointOnObject", 0, 2, -1))
sketch5.addConstraint(Sketcher.Constraint("PointOnObject", 3, 2, -1))
sketch5.addConstraint(Sketcher.Constraint("PointOnObject", 6, 2, -1))
sketch5.addConstraint(Sketcher.Constraint("PointOnObject", 14, 2, -1))
sketch5.addConstraint(Sketcher.Constraint("PointOnObject", 40, 2, -1))
sketch5.addConstraint(Sketcher.Constraint("PointOnObject", 44, 2, -1))
sketch5.addConstraint(Sketcher.Constraint("DistanceY", 14, 1, 14, 2, Q("6.35 mm")))
sketch5.addConstraint(Sketcher.Constraint("DistanceY", 8, 2, -1, 1, Q("6.35 mm")))
sketch5.addConstraint(Sketcher.Constraint("DistanceY", 11, 2, -1, 1, Q("6.35 mm")))
sketch5.addConstraint(Sketcher.Constraint("DistanceY", 38, 2, -1, 1, Q("6.35 mm")))
sketch5.addConstraint(Sketcher.Constraint("DistanceX", 10, 2, -1, 1, Q("9.525 mm")))
sketch5.addConstraint(Sketcher.Constraint("DistanceX", 33, 2, 41, 2, Q("2.006 mm")))
sketch5.addConstraint(Sketcher.Constraint("Distance", 10, Q("5.829802 mm")))
sketch5.addConstraint(Sketcher.Constraint("DistanceX", 12, 2, 12, 1, Q("0.08141 mm")))
sketch5.addConstraint(Sketcher.Constraint("DistanceX", 13, 2, 13, 1, Q("3.582051 mm")))
sketch5.addConstraint(Sketcher.Constraint("DistanceX", 15, 1, 15, 2, Q("3.582051 mm")))
sketch5.addConstraint(Sketcher.Constraint("DistanceX", 17, 2, 17, 1, Q("3.012179 mm")))
sketch5.addConstraint(Sketcher.Constraint("DistanceX", 19, 1, 19, 2, Q("3.012179 mm")))
sketch5.addConstraint(Sketcher.Constraint("DistanceX", 21, 2, 21, 1, Q("3.012179 mm")))
sketch5.addConstraint(Sketcher.Constraint("DistanceX", 31, 2, 31, 1, Q("2.686538 mm")))
sketch5.addConstraint(Sketcher.Constraint("DistanceX", 39, 2, 39, 1, Q("0.08141 mm")))
sketch5.addConstraint(Sketcher.Constraint("DistanceX", 45, 1, 45, 2, Q("0.619481 mm")))
sketch5.addConstraint(Sketcher.Constraint("DistanceX", 47, 2, 47, 1, Q("2.269311 mm")))
sketch5.addConstraint(Sketcher.Constraint("DistanceX", 2, 2, 9, 2, Q("4.976202 mm")))
sketch5.addConstraint(Sketcher.Constraint("DistanceX", 40, 2, 42, 2, Q("1.5875 mm")))
sketch5.addConstraint(Sketcher.Constraint("DistanceX", 46, 2, 43, 2, Q("0.3002 mm")))
sketch5.addConstraint(Sketcher.Constraint("Distance", 0, Q("6.405092 mm")))
sketch5.addConstraint(Sketcher.Constraint("Distance", 2, Q("4.61935 mm")))
sketch5.addConstraint(Sketcher.Constraint("Distance", 6, Q("4.60943 mm")))
sketch5.addConstraint(Sketcher.Constraint("Distance", 8, Q("6.40576 mm")))
sketch5.addConstraint(Sketcher.Constraint("Distance", 40, Q("7.028209 mm")))
sketch5.addConstraint(Sketcher.Constraint("Distance", 46, Q("2.671592 mm")))
sketch5.addConstraint(Sketcher.Constraint("DistanceX", 1, 1, 1, 2, Q("0.573688 mm")))
sketch5.addConstraint(Sketcher.Constraint("DistanceX", 4, 1, 4, 2, Q("0.128476 mm")))
sketch5.addConstraint(Sketcher.Constraint("DistanceX", 7, 1, 7, 2, Q("0.572416 mm")))
sketch5.addConstraint(Sketcher.Constraint("DistanceX", 9, 2, 9, 1, Q("0.082682 mm")))
sketch5.addConstraint(Sketcher.Constraint("DistanceX", 41, 1, 41, 2, Q("0.622025 mm")))
sketch5.addConstraint(Sketcher.Constraint("DistanceX", 43, 1, 43, 2, Q("2.878616 mm")))
sketch5.addConstraint(Sketcher.Constraint("DistanceY", 16, 2, 16, 1, Q("0.651282 mm")))
sketch5.addConstraint(Sketcher.Constraint("DistanceY", 18, 2, 18, 1, Q("2.442308 mm")))
sketch5.addConstraint(Sketcher.Constraint("DistanceY", 20, 2, 20, 1, Q("0.651282 mm")))
sketch5.addConstraint(Sketcher.Constraint("DistanceY", 22, 2, 22, 1, Q("1.953846 mm")))
sketch5.addConstraint(Sketcher.Constraint("DistanceX", 1, 2, -1, 1, Q("12.492658 mm")))
sketch5.addConstraint(Sketcher.Constraint("DistanceX", 4, 2, -1, 1, Q("9.45631 mm")))
sketch5.addConstraint(Sketcher.Constraint("DistanceY", 5, 2, -1, 1, Q("4.569151 mm")))
sketch5.addConstraint(Sketcher.Constraint("DistanceX", 6, 2, -1, 1, Q("6.55607 mm")))
sketch5.addConstraint(Sketcher.Constraint("DistanceX", 13, 2, -1, 1, Q("4.68109 mm")))
sketch5.addConstraint(Sketcher.Constraint("DistanceY", 46, 2, -1, 1, Q("2.686538 mm")))
sketch5.addConstraint(Sketcher.Constraint("DistanceY", 48, 2, -1, 1, Q("5.11231 mm")))
sketch5.addConstraint(Sketcher.Constraint("DistanceY", 33, 2, 42, 2, Q("0.407051 mm")))
sketch5.addConstraint(Sketcher.Constraint("DistanceX", 38, 2, 44, 2, Q("2.311288 mm")))
pocket2 = body.newObject("PartDesign::Pocket", "Pocket001")
pocket2.Profile = sketch5
pocket2.Length = 2
pocket2.Reversed = True

# Sketch on YZ plane
sketch6 = body.newObject("Sketcher::SketchObject", "Sketch005")
sketch6.AttachmentSupport = (doc.getObject("YZ_Plane"), [""])
sketch6.MapMode = "FlatFace"
sketch6.AttachmentOffset = App.Placement(Vector(0, 0, -34.45), App.Rotation())
sketch6.addGeometry(Part.LineSegment(Vector(1.4, -2.5, 0), Vector(0, -2.5, 0)), False)
sketch6.addGeometry(Part.LineSegment(Vector(0, -2.5, 0), Vector(0, 2.5, 0)), False)
sketch6.addGeometry(Part.LineSegment(Vector(0, 2.5, 0), Vector(1.4, 2.5, 0)), False)
sketch6.addGeometry(Part.LineSegment(Vector(1.4, 2.5, 0), Vector(1.4, -2.5, 0)), False)
sketch6.addConstraint(Sketcher.Constraint("Coincident", 0, 2, 1, 1))
sketch6.addConstraint(Sketcher.Constraint("Coincident", 1, 2, 2, 1))
sketch6.addConstraint(Sketcher.Constraint("Coincident", 2, 2, 3, 1))
sketch6.addConstraint(Sketcher.Constraint("Coincident", 3, 2, 0, 1))
sketch6.addConstraint(Sketcher.Constraint("Horizontal", 0))
sketch6.addConstraint(Sketcher.Constraint("Vertical", 1))
sketch6.addConstraint(Sketcher.Constraint("Horizontal", 2))
sketch6.addConstraint(Sketcher.Constraint("Vertical", 3))
sketch6.addConstraint(Sketcher.Constraint("Symmetric", 0, 2, 1, 2, -1, 1))
sketch6.addConstraint(Sketcher.Constraint("DistanceY", 1, 1, 1, 2, Q("5 mm")))
sketch6.addConstraint(Sketcher.Constraint("DistanceX", 0, 2, 0, 1, Q("1.4 mm")))
pad4 = body.newObject("PartDesign::Pad", "Pad003")
pad4.Profile = sketch6
pad4.Length = 2
pad4.Reversed = True
doc.recompute()

mirrored2 = body.newObject("PartDesign::Mirrored", "Mirrored001")
mirrored2.Originals = [pad4]
mirrored2.MirrorPlane = (doc.getObject("YZ_Plane"), [""])
body.Tip = mirrored2
doc.recompute()

fillet = body.newObject("PartDesign::Fillet", "Fillet")
fillet.Base = (mirrored2, edges_at(mirrored2, [
    (-34.45, 0, 24.725),
    (34.45, 0, -24.725),
    (19.725, 0, -46.95),
    (34.45, 0, 24.725),
    (19.725, 0, 46.95),
    (-19.725, 0, 46.95),
    (-34.45, 0, -24.725),
    (-19.725, 0, -46.95),
]))
fillet.Radius = 1.4

doc.recompute()
